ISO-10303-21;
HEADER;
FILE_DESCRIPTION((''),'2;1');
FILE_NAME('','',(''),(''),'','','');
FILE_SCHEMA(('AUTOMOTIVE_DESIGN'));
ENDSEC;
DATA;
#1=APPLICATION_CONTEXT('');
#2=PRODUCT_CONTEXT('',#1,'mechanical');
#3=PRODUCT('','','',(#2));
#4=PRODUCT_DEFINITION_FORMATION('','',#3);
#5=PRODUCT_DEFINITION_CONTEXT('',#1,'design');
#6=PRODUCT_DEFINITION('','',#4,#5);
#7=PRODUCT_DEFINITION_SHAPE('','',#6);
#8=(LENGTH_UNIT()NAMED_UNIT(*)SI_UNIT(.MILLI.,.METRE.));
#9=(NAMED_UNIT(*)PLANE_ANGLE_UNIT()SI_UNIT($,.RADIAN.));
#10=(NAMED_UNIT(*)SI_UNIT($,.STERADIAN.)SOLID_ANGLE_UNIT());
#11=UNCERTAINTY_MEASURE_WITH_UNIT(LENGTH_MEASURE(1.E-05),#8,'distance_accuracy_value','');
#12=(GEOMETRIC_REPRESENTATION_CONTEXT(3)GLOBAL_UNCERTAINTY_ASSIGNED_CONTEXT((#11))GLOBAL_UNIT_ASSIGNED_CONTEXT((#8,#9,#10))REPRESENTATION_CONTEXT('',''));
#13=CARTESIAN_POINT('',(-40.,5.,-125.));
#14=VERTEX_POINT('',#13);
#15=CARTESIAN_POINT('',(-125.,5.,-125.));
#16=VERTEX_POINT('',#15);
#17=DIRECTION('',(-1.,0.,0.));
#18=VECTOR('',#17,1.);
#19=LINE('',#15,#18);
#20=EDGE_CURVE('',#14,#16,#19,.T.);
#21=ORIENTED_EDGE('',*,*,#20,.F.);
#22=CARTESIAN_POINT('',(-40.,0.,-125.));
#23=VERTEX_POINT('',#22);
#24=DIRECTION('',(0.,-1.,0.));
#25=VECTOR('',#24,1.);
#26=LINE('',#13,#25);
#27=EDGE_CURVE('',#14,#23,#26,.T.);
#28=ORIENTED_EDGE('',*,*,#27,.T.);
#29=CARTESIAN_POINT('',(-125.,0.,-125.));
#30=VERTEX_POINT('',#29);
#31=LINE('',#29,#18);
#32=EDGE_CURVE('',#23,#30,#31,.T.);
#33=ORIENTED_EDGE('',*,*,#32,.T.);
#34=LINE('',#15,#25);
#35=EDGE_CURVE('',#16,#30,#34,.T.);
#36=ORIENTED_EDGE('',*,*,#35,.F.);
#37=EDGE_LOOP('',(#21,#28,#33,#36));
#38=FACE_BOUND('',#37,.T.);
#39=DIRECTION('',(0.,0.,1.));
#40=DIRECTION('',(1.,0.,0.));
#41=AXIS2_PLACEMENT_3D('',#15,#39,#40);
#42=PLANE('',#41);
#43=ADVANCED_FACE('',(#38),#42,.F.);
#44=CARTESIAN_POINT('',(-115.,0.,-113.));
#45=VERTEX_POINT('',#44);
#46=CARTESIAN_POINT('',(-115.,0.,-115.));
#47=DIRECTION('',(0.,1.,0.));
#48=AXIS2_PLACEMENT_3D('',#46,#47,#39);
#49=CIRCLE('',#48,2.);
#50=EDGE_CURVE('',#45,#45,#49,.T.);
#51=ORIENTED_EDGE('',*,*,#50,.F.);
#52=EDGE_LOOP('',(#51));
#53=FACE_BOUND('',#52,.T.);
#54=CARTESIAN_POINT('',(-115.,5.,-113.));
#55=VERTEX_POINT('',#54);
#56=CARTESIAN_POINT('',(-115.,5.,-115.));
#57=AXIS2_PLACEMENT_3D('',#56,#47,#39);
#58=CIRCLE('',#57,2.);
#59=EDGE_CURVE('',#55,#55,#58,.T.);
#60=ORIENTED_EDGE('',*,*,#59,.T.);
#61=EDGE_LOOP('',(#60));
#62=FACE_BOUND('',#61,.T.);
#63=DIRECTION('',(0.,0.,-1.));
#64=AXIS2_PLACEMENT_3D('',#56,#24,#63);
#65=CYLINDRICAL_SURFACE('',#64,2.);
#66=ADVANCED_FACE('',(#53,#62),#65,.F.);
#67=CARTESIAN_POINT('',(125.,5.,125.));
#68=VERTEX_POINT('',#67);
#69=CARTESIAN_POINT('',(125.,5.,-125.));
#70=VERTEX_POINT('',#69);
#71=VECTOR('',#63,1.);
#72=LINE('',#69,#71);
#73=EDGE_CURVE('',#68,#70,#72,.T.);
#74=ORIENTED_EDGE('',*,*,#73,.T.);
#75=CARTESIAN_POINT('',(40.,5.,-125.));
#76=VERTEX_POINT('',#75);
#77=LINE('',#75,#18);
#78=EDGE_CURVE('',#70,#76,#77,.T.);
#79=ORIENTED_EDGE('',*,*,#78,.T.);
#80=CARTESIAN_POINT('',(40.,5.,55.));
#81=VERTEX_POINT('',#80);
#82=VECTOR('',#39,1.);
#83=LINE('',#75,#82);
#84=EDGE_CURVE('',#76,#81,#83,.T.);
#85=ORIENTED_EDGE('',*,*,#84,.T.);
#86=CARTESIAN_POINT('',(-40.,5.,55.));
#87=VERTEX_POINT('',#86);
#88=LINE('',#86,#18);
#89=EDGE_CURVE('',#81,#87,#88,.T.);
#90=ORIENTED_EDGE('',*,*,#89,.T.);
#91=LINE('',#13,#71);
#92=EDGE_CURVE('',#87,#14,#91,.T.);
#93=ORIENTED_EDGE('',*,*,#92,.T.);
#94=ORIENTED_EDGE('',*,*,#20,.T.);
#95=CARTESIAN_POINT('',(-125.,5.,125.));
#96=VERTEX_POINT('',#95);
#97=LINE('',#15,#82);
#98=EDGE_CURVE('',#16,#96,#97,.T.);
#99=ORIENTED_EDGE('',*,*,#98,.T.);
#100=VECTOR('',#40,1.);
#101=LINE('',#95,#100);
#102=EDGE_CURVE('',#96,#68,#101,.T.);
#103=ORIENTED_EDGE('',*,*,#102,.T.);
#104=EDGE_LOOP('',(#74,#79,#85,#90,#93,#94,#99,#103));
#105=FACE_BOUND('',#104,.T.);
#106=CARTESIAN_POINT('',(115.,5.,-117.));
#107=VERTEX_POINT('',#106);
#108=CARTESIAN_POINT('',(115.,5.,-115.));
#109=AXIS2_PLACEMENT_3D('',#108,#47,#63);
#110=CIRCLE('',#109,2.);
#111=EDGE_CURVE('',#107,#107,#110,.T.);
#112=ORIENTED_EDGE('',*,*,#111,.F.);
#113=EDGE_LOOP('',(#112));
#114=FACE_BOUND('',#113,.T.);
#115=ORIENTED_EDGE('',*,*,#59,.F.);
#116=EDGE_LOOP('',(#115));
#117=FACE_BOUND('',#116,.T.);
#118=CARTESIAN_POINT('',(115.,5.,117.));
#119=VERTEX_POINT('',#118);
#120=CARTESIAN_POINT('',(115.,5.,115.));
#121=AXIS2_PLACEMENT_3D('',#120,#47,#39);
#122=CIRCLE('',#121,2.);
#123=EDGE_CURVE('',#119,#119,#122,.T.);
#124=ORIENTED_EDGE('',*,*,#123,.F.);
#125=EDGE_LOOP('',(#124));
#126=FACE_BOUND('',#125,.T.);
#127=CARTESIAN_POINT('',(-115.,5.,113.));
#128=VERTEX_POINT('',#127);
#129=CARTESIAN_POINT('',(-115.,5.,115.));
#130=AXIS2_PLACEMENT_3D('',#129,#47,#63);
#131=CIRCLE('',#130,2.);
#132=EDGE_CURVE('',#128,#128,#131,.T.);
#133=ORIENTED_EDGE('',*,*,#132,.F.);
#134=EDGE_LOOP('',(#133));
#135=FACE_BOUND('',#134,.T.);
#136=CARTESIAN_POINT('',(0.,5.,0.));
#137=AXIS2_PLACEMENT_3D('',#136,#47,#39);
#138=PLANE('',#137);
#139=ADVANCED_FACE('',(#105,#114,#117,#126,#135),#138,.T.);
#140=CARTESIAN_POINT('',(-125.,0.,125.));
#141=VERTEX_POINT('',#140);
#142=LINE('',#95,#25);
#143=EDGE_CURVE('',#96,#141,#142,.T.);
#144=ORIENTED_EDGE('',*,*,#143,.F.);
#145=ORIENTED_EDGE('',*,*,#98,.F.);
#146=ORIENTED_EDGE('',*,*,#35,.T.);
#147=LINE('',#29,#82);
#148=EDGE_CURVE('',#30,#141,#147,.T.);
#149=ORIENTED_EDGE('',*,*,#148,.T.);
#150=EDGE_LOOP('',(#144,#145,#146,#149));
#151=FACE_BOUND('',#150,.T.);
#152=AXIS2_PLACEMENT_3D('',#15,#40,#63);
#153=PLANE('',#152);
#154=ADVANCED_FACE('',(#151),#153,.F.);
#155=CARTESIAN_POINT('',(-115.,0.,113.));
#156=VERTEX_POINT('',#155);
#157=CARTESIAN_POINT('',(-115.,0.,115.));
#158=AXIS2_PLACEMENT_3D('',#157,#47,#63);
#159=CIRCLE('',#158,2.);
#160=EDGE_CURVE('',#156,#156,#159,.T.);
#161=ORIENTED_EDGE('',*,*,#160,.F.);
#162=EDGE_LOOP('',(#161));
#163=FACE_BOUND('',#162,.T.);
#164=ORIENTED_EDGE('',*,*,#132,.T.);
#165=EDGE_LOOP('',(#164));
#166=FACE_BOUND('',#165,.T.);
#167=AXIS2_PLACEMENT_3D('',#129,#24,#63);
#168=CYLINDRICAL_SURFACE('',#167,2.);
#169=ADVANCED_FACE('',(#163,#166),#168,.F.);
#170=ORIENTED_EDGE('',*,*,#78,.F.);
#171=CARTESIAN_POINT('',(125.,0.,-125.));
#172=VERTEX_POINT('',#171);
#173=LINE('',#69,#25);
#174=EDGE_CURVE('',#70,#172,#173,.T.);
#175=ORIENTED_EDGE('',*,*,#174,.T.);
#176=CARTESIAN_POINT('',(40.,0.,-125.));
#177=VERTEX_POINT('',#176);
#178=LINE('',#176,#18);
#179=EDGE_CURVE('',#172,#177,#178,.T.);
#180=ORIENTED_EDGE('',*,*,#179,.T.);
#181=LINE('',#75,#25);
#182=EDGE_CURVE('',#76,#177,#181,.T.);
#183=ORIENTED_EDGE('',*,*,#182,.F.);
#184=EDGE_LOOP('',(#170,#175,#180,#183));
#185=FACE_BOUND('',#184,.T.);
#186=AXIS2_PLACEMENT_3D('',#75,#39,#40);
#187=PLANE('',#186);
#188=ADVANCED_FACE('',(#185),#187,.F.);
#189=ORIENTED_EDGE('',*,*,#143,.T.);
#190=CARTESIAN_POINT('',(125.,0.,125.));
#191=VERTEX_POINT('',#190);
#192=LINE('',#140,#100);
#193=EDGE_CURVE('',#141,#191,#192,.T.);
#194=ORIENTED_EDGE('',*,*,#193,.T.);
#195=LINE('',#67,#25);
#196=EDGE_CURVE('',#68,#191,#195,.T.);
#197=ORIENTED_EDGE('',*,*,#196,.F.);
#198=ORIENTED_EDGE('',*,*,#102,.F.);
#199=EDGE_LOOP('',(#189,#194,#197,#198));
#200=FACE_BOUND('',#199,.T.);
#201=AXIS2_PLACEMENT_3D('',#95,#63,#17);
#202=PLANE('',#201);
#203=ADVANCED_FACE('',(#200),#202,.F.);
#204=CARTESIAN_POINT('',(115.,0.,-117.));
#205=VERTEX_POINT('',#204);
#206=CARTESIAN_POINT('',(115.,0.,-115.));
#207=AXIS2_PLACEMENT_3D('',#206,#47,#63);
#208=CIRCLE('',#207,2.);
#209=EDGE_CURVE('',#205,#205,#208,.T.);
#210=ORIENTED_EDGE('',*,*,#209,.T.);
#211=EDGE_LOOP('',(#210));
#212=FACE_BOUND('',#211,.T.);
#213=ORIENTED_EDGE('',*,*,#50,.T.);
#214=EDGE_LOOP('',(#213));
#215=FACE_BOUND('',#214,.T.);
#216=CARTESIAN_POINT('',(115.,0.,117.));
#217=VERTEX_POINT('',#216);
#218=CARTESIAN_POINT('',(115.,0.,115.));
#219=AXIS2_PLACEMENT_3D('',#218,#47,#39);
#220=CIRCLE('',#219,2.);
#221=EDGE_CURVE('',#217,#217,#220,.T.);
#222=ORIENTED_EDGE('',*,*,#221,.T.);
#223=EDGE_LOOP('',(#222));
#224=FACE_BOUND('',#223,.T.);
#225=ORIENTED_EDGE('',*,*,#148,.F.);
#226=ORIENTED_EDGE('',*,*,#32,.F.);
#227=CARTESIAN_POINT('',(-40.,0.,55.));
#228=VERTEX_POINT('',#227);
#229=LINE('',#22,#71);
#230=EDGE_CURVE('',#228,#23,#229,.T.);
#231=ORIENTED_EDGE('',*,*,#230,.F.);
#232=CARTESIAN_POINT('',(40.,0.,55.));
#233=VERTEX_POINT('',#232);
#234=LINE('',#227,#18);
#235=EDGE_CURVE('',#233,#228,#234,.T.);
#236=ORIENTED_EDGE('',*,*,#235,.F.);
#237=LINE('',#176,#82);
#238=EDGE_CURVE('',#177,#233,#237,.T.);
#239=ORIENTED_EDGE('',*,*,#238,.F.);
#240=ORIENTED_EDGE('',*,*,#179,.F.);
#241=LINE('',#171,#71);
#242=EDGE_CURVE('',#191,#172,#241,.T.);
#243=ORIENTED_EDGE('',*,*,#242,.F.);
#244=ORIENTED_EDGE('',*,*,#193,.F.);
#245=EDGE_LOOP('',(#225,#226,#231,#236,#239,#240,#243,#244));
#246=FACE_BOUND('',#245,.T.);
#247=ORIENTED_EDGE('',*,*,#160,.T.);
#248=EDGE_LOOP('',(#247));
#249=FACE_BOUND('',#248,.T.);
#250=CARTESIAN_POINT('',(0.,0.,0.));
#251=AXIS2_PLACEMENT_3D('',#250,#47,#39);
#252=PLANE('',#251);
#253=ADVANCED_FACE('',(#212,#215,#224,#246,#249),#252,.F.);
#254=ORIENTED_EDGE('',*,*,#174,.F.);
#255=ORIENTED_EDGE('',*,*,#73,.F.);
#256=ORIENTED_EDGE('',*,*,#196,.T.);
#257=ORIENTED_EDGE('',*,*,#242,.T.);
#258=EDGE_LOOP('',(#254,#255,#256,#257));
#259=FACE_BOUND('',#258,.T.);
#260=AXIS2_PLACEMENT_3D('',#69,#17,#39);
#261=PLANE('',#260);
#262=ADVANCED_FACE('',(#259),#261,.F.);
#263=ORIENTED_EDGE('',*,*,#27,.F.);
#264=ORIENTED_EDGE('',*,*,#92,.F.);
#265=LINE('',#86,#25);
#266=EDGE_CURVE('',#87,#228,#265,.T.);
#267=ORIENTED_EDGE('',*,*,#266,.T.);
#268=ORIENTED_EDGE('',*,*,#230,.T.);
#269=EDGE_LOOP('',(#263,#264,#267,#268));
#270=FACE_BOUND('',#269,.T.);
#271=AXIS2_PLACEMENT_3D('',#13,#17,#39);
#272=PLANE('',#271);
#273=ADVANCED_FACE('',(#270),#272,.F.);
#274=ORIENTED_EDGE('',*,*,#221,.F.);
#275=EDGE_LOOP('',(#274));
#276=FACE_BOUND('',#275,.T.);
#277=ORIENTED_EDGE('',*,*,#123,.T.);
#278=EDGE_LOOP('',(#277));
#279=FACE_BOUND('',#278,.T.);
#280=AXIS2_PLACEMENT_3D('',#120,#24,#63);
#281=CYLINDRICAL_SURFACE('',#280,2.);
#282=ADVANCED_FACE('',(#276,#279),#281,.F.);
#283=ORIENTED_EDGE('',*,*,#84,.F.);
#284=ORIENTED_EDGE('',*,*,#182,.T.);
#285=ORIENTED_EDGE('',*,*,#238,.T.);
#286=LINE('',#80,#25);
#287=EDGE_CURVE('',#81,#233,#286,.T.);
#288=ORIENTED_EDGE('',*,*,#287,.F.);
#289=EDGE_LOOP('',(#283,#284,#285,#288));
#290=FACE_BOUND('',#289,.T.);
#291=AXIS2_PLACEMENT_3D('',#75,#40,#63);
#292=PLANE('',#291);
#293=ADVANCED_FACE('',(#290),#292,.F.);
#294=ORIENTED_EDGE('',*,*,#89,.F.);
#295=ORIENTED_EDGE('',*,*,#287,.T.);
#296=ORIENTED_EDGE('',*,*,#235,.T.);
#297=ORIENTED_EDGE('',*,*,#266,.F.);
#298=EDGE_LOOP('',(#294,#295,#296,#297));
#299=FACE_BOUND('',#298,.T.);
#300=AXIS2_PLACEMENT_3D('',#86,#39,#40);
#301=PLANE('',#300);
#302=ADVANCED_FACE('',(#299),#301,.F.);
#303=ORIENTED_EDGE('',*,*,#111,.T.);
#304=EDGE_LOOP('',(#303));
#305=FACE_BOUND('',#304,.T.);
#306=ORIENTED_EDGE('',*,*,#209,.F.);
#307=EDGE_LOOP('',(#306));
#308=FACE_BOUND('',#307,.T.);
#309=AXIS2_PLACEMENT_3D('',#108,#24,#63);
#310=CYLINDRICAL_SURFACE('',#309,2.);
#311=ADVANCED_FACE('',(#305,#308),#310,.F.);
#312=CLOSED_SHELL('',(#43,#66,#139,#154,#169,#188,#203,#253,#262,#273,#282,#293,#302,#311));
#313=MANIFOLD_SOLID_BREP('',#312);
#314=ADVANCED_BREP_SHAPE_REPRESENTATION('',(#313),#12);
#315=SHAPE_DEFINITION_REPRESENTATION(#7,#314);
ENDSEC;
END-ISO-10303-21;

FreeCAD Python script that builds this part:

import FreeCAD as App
import Part
import Sketcher
Q = App.Units.Quantity


def add_polygon(sketch, points):
    """Adds a closed chain of lines whose ends are joined by coincident constraints."""
    first, n = sketch.GeometryCount, len(points)
    for a, b in zip(points, points[1:] + points[:1]):
        sketch.addGeometry(Part.LineSegment(App.Vector(*a, 0), App.Vector(*b, 0)), False)
    for i in range(n):
        sketch.addConstraint(Sketcher.Constraint("Coincident", first + i, 2, first + (i + 1) % n, 1))

doc = App.newDocument("Part")
params = doc.addObject("Spreadsheet::Sheet", "Params")
for row, (alias, value) in enumerate([
    ("sketch1_diameter", "4 mm"),
    ("sketch1_width", "85 mm"),
    ("sketch1_width2", "250 mm"),
    ("sketch1_height", "180 mm"),
    ("pad1_length", "5 mm"),
], start=1):
    params.set(f"A{row}", alias)
    params.set(f"B{row}", "=" + value)
    params.setAlias(f"B{row}", alias)

body = doc.addObject("PartDesign::Body", "Body")

sketch1 = body.newObject("Sketcher::SketchObject", "Sketch")
sketch1.AttachmentSupport = (doc.getObject("XZ_Plane"), [""])
sketch1.MapMode = "FlatFace"
add_polygon(sketch1, [(-40, -125), (-125, -125), (-125, 125), (125, 125), (125, -125), (40, -125), (40, 55), (-40, 55)])
sketch1.addGeometry(Part.Circle(App.Vector(115, 115, 0), App.Vector(0, 0, 1), 2), False)
sketch1.addGeometry(Part.Circle(App.Vector(-115, 115, 0), App.Vector(0, 0, 1), 2), False)
sketch1.addGeometry(Part.Circle(App.Vector(115, -115, 0), App.Vector(0, 0, 1), 2), False)
sketch1.addGeometry(Part.Circle(App.Vector(-115, -115, 0), App.Vector(0, 0, 1), 2), False)
sketch1.addConstraint(Sketcher.Constraint("Horizontal", 0))
sketch1.addConstraint(Sketcher.Constraint("Vertical", 1))
sketch1.addConstraint(Sketcher.Constraint("Horizontal", 2))
sketch1.addConstraint(Sketcher.Constraint("Vertical", 3))
sketch1.addConstraint(Sketcher.Constraint("Horizontal", 4))
sketch1.addConstraint(Sketcher.Constraint("Vertical", 5))
sketch1.addConstraint(Sketcher.Constraint("Horizontal", 6))
sketch1.addConstraint(Sketcher.Constraint("Vertical", 7))
sketch1.addConstraint(Sketcher.Constraint("Equal", 8, 9))
sketch1.addConstraint(Sketcher.Constraint("Equal", 9, 10))
sketch1.addConstraint(Sketcher.Constraint("Equal", 10, 11))
sketch1.addConstraint(Sketcher.Constraint("Symmetric", 9, 3, 10, 3, -1, 1))
sketch1.addConstraint(Sketcher.Constraint("Symmetric", 8, 3, 11, 3, -1, 1))
sketch1.addConstraint(Sketcher.Constraint("Symmetric", 0, 2, 2, 2, -1, 1))
sketch1.addConstraint(Sketcher.Constraint("Symmetric", 8, 3, 9, 3, -2))
sketch1.addConstraint(Sketcher.Constraint("Symmetric", 4, 2, 7, 2, -2))
sketch1.addConstraint(Sketcher.Constraint("Equal", 2, 1))
sketch1.addConstraint(Sketcher.Constraint("Diameter", 8, Q("4 mm")))
sketch1.addConstraint(Sketcher.Constraint("DistanceX", 0, 2, 0, 1, Q("85 mm")))
sketch1.addConstraint(Sketcher.Constraint("DistanceX", 2, 1, 2, 2, Q("250 mm")))
sketch1.addConstraint(Sketcher.Constraint("DistanceY", 5, 1, 5, 2, Q("180 mm")))
sketch1.addConstraint(Sketcher.Constraint("DistanceX", -1, 1, 8, 3, Q("115 mm")))
sketch1.addConstraint(Sketcher.Constraint("DistanceY", -1, 1, 8, 3, Q("115 mm")))
sketch1.setExpression("Constraints[25]", "Params.sketch1_diameter")
sketch1.setExpression("Constraints[26]", "Params.sketch1_width")
sketch1.setExpression("Constraints[27]", "Params.sketch1_width2")
sketch1.setExpression("Constraints[28]", "Params.sketch1_height")
pad1 = body.newObject("PartDesign::Pad", "Pad")
pad1.Profile = sketch1
pad1.setExpression("Length", "Params.pad1_length")
pad1.Reversed = True

doc.recompute()
